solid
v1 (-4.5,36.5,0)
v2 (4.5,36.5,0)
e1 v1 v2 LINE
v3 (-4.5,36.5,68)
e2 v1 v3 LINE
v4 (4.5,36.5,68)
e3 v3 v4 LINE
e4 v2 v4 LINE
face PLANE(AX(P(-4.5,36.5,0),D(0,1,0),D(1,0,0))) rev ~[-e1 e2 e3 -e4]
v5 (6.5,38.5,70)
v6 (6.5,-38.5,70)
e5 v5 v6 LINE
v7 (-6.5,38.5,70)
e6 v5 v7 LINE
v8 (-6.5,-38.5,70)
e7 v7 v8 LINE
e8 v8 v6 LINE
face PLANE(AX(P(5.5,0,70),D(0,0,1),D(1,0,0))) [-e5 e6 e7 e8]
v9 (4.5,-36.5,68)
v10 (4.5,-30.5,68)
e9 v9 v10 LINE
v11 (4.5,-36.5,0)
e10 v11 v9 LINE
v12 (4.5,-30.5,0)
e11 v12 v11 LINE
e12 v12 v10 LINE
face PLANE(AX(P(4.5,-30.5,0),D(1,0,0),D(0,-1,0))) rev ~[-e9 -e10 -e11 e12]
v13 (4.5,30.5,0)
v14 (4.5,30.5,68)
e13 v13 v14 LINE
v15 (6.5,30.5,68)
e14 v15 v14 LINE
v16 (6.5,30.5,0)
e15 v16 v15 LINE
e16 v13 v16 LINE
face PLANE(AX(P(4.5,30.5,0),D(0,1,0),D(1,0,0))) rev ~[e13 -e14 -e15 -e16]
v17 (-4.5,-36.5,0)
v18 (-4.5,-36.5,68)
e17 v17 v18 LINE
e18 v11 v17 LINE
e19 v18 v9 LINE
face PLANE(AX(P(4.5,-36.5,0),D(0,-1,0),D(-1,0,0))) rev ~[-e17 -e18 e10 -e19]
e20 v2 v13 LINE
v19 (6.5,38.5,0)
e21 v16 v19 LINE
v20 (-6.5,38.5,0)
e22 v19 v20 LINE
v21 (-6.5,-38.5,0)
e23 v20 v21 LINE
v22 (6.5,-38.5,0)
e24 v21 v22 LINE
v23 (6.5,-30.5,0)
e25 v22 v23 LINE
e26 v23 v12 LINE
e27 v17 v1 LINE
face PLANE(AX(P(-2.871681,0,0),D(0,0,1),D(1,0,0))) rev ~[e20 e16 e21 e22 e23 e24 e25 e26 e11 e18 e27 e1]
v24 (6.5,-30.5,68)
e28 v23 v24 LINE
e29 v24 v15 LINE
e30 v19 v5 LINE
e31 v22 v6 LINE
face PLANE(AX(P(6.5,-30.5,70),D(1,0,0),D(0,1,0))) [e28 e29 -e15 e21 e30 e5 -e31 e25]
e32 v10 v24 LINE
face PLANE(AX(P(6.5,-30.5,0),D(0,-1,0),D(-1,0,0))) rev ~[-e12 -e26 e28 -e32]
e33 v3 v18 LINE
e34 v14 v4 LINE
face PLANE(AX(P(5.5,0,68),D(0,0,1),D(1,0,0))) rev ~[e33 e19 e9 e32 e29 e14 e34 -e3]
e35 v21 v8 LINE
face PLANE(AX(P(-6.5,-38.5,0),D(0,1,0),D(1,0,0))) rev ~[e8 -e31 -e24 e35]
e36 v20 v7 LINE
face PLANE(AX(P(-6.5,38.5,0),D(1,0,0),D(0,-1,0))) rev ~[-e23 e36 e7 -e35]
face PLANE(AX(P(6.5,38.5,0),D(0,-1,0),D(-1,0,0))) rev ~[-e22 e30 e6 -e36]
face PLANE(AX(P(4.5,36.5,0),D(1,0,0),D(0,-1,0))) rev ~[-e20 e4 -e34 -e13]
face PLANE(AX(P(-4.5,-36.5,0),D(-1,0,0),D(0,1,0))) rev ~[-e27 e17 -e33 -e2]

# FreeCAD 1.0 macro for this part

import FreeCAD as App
import Part
import Sketcher
from FreeCAD import Vector
Q = App.Units.Quantity


def add_polygon(sketch, points):
    """Adds a closed chain of lines whose ends are joined by coincident constraints."""
    first, n = sketch.GeometryCount, len(points)
    for a, b in zip(points, points[1:] + points[:1]):
        sketch.addGeometry(Part.LineSegment(App.Vector(*a, 0), App.Vector(*b, 0)), False)
    for i in range(n):
        sketch.addConstraint(Sketcher.Constraint("Coincident", first + i, 2, first + (i + 1) % n, 1))

doc = App.newDocument("Part")
body = doc.addObject("PartDesign::Body", "Body")

# Sketch on XY plane
sketch1 = doc.addObject("Sketcher::SketchObject", "Sketch")
body.addObject(sketch1)
sketch1.AttachmentSupport = (doc.XY_Plane, [""])
sketch1.MapMode = "FlatFace"
add_polygon(sketch1, [(-4.5, -36.5), (-4.5, 36.5), (4.5, 36.5), (4.5, 30.5), (6.5, 30.5), (6.5, 38.5), (-6.5, 38.5), (-6.5, -38.5), (6.5, -38.5), (6.5, -30.5), (4.5, -30.5), (4.5, -36.5)])  # lines 0-11
sketch1.addConstraint([
    Sketcher.Constraint("Vertical", 0),
    Sketcher.Constraint("Horizontal", 1),
    Sketcher.Constraint("Vertical", 2),
    Sketcher.Constraint("Horizontal", 3),
    Sketcher.Constraint("Vertical", 4),
    Sketcher.Constraint("Horizontal", 5),
    Sketcher.Constraint("Vertical", 6),
    Sketcher.Constraint("Horizontal", 7),
    Sketcher.Constraint("Vertical", 8),
    Sketcher.Constraint("Horizontal", 9),
    Sketcher.Constraint("Vertical", 10),
    Sketcher.Constraint("Horizontal", 11),
    Sketcher.Constraint("Symmetric", 4, 2, 6, 2, -1, 1),
    Sketcher.Constraint("Symmetric", 0, 2, 10, 2, -1, 1),
    Sketcher.Constraint("Symmetric", 3, 2, 8, 2, -1),
    Sketcher.Constraint("Vertical", 2, 2, 9, 2),
    Sketcher.Constraint("DistanceX", 1, 1, 1, 2, Q("9 mm")),
    Sketcher.Constraint("DistanceX", 3, 1, 3, 2, Q("2 mm")),
    Sketcher.Constraint("DistanceY", 0, 1, 0, 2, Q("73 mm")),
    Sketcher.Constraint("DistanceY", 2, 2, 2, 1, Q("6 mm")),
    Sketcher.Constraint("DistanceY", 4, 1, 4, 2, Q("8 mm")),
])
pad1 = doc.addObject("PartDesign::Pad", "Pad")
body.addObject(pad1)
pad1.Profile = sketch1
pad1.Length = 70

# Sketch on XY plane
sketch2 = doc.addObject("Sketcher::SketchObject", "Sketch001")
body.addObject(sketch2)
sketch2.AttachmentSupport = (doc.XY_Plane, [""])
sketch2.MapMode = "FlatFace"
sketch2.AttachmentOffset = App.Placement(Vector(0, 0, 70), App.Rotation())
add_polygon(sketch2, [(6.5, -30.5), (6.5, 30.5), (4.5, 30.5), (4.5, 36.5), (-4.5, 36.5), (-4.5, -36.5), (4.5, -36.5), (4.5, -30.5)])  # lines 0-7
sketch2.addConstraint([
    Sketcher.Constraint("Vertical", 0),
    Sketcher.Constraint("Horizontal", 1),
    Sketcher.Constraint("Vertical", 2),
    Sketcher.Constraint("Horizontal", 3),
    Sketcher.Constraint("Vertical", 4),
    Sketcher.Constraint("Horizontal", 5),
    Sketcher.Constraint("Vertical", 6),
    Sketcher.Constraint("Horizontal", 7),
    Sketcher.Constraint("Symmetric", 2, 2, 4, 2, -1, 1),
    Sketcher.Constraint("Symmetric", 1, 2, 6, 2, -1),
    Sketcher.Constraint("DistanceX", 1, 2, 1, 1, Q("2 mm")),
    Sketcher.Constraint("DistanceX", 3, 2, 3, 1, Q("9 mm")),
    Sketcher.Constraint("DistanceY", 0, 1, 0, 2, Q("61 mm")),
    Sketcher.Constraint("DistanceY", 2, 1, 2, 2, Q("6 mm")),
])
pad2 = doc.addObject("PartDesign::Pad", "Pad001")
body.addObject(pad2)
pad2.Profile = sketch2
pad2.Length = 2
pad2.Reversed = True

doc.recompute()
